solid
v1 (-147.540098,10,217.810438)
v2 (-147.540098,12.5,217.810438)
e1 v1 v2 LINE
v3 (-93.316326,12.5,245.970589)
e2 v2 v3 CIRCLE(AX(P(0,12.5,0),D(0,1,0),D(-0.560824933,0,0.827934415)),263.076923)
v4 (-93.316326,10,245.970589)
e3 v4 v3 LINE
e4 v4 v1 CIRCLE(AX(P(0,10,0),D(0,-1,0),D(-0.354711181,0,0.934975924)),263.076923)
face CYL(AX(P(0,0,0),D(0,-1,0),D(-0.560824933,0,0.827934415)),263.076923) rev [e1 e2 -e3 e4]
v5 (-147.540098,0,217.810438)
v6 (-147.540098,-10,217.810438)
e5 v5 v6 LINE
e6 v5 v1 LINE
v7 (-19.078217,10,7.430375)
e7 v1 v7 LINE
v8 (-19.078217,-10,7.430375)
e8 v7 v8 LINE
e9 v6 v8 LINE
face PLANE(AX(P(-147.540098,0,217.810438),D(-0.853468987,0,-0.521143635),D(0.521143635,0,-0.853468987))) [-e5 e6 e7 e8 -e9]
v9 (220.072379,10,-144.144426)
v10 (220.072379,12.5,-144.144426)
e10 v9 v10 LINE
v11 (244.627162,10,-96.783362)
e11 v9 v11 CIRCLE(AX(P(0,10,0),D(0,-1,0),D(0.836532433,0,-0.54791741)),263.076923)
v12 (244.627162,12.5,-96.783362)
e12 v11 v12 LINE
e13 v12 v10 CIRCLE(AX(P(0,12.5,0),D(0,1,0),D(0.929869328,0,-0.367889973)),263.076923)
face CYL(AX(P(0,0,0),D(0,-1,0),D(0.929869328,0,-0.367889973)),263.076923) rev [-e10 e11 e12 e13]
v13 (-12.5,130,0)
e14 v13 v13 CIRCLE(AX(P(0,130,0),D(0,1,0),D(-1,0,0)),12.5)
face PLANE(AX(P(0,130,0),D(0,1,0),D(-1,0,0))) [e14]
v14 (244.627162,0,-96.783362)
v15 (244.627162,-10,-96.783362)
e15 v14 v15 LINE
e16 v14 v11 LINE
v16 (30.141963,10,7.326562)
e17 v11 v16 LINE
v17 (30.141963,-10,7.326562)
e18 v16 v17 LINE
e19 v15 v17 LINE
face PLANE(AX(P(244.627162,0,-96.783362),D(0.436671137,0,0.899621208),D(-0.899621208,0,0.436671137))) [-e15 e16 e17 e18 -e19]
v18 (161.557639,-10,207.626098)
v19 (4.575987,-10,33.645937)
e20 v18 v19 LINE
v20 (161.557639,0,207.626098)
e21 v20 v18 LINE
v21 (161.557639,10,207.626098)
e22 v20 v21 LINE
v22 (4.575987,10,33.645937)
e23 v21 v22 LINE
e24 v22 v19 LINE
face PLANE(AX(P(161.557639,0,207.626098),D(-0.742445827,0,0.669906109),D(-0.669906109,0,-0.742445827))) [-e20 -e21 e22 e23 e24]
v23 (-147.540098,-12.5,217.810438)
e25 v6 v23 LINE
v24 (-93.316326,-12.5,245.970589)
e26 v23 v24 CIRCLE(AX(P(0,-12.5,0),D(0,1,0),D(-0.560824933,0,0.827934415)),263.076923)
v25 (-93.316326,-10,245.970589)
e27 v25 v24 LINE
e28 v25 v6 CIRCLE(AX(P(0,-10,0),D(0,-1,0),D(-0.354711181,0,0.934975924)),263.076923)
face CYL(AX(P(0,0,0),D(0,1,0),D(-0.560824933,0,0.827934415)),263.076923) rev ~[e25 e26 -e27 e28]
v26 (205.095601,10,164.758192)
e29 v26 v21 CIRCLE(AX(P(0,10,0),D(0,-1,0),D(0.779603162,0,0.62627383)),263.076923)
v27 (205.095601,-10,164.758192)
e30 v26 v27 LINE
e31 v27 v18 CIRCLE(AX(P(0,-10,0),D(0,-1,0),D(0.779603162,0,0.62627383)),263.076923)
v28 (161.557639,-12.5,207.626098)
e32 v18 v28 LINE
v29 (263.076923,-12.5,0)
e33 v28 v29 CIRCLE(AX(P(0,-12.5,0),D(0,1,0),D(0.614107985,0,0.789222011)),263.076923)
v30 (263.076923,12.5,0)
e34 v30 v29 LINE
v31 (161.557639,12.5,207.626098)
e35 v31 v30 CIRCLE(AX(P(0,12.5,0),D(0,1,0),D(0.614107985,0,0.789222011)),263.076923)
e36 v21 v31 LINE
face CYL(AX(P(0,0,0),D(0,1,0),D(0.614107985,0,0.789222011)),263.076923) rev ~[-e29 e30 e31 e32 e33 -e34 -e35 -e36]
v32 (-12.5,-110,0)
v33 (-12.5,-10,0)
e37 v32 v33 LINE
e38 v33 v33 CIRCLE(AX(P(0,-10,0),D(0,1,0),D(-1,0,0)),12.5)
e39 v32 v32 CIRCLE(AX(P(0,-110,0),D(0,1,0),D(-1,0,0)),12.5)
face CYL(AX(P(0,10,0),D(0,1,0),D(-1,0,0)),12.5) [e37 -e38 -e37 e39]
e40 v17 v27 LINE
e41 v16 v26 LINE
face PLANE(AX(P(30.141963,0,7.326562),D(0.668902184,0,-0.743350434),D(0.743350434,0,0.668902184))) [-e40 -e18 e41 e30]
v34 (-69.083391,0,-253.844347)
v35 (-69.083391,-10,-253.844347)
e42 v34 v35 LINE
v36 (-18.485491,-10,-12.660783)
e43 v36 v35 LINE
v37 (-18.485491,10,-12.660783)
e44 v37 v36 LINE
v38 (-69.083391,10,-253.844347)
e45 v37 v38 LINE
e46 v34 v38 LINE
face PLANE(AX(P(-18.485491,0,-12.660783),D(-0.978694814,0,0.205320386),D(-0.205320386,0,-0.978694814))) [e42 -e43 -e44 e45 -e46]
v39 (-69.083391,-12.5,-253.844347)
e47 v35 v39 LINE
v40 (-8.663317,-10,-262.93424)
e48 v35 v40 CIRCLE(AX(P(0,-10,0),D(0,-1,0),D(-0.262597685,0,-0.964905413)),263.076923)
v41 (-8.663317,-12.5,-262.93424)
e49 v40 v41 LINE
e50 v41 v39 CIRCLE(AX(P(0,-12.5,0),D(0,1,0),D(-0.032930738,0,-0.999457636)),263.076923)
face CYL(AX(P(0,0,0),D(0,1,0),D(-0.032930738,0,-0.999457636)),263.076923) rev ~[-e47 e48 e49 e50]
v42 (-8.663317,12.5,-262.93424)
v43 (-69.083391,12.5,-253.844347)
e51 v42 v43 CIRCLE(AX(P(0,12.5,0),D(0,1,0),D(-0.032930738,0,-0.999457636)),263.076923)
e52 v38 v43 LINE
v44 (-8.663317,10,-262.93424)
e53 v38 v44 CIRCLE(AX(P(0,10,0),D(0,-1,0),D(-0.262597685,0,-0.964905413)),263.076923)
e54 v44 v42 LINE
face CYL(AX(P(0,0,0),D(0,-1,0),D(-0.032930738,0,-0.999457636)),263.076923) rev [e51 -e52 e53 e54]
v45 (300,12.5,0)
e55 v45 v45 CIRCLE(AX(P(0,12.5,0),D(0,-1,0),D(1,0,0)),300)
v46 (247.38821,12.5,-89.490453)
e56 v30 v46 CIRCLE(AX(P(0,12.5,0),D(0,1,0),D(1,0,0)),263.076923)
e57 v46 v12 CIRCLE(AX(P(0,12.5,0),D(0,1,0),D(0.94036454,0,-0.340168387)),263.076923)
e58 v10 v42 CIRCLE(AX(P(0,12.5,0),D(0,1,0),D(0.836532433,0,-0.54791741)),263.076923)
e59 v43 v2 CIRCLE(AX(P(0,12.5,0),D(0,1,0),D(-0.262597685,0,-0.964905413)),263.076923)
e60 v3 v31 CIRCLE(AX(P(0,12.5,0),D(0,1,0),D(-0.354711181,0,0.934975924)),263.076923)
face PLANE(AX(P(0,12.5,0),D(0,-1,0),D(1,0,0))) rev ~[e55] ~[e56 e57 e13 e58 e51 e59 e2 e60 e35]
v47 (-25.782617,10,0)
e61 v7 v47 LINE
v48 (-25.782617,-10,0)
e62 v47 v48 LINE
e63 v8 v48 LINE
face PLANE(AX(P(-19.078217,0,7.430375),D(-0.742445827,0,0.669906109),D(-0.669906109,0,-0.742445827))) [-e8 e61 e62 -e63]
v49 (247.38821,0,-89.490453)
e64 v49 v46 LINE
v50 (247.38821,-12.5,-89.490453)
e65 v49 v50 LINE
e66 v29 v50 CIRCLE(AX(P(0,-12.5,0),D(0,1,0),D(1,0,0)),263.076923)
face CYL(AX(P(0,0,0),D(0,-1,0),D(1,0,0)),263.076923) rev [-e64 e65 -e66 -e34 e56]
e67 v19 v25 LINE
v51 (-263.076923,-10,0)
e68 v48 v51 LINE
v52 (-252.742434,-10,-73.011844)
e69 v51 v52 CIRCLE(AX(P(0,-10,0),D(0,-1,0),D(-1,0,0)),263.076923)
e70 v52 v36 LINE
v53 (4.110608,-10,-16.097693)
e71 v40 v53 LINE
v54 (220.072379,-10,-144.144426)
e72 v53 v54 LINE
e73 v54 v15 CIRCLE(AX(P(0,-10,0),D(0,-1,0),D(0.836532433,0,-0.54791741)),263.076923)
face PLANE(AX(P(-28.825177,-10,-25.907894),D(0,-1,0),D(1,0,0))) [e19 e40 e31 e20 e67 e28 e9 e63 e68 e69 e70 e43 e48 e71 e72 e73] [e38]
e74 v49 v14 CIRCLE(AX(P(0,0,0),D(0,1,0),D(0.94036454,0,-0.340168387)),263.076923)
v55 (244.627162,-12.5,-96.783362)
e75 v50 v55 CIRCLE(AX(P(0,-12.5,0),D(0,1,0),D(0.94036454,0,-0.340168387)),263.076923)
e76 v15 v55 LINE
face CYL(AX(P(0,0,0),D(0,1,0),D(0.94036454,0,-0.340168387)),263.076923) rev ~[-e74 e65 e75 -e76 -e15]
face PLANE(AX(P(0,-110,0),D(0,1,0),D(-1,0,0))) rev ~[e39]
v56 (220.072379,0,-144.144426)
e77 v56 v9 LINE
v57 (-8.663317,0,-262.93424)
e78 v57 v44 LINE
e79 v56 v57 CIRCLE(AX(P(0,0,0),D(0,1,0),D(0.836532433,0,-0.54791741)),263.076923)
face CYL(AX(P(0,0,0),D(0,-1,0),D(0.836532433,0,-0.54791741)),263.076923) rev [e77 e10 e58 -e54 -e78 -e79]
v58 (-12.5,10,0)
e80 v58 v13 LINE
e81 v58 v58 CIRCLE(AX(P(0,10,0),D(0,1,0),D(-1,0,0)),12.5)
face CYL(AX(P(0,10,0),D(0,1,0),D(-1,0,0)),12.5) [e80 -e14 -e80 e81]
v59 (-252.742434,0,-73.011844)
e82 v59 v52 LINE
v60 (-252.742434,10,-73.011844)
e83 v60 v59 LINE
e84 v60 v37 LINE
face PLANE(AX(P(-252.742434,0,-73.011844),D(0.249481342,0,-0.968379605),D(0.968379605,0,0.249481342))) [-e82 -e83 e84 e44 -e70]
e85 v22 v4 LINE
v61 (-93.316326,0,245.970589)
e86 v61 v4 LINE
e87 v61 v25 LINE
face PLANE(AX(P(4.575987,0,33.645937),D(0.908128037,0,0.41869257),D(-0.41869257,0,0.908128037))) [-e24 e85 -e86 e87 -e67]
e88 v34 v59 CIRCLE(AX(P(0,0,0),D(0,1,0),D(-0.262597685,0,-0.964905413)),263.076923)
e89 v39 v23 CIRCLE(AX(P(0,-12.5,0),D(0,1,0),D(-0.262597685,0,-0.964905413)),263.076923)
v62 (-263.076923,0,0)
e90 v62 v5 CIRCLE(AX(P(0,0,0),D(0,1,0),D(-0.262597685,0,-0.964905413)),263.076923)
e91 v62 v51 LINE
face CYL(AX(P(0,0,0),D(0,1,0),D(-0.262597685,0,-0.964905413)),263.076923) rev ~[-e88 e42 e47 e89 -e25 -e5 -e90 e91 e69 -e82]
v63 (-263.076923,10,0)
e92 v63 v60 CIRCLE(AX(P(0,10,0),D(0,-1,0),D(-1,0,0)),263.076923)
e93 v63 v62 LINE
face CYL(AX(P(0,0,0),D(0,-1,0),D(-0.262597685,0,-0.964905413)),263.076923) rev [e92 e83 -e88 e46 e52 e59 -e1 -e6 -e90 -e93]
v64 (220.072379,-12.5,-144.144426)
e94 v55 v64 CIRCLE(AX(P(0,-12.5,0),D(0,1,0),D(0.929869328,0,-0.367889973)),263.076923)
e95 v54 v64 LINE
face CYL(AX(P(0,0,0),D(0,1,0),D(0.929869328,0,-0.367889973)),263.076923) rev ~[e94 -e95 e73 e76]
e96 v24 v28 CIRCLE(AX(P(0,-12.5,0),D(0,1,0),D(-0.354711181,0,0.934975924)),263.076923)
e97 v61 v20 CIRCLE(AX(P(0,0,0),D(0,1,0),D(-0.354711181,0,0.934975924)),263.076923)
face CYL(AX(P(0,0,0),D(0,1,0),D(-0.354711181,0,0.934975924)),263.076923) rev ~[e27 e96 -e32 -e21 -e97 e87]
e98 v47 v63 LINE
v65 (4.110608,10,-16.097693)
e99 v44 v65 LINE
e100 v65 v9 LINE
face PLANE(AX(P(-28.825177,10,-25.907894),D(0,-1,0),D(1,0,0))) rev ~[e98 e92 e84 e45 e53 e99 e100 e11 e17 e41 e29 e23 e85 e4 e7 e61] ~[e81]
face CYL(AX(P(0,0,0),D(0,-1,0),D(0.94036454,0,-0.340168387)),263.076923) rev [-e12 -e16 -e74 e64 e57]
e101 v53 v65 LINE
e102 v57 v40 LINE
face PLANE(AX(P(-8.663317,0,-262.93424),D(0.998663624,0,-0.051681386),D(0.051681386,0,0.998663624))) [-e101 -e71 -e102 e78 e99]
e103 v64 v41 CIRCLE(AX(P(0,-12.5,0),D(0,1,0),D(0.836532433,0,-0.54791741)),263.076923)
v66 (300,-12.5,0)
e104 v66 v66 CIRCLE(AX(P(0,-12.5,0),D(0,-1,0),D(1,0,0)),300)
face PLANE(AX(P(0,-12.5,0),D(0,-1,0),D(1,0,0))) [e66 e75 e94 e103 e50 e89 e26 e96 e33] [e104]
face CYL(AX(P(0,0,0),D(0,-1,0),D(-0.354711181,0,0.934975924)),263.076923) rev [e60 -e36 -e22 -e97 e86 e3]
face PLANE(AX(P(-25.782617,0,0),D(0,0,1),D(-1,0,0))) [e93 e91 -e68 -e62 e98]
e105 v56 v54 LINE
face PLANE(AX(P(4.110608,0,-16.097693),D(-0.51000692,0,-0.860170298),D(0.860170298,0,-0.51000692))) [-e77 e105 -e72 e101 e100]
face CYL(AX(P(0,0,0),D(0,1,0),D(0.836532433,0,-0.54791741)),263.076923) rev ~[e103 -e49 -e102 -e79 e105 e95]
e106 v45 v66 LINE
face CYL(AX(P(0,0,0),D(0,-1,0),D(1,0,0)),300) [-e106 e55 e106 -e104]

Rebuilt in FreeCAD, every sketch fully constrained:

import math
import FreeCAD as App
import Part
import Sketcher

V = App.Vector

doc = App.newDocument("Part")
params = doc.addObject("Spreadsheet::Sheet", "Params")
for row, (alias, value) in enumerate([
    ("sketch1_diameter", "600 mm"),
    ("pad1_length", "25 mm"),
    ("pad2_length", "20 mm"),
    ("sketch3_diameter", "25 mm"),
    ("pad3_length", "240 mm"),
], start=1):
    params.set(f"A{row}", alias)
    params.set(f"B{row}", "=" + value)
    params.setAlias(f"B{row}", alias)

body = doc.addObject("PartDesign::Body", "Body")

# Sketch on XZ plane
sketch1 = doc.addObject("Sketcher::SketchObject", "Sketch")
body.addObject(sketch1)
sketch1.AttachmentSupport = (doc.XZ_Plane, [""])
sketch1.MapMode = "FlatFace"
sketch1.addGeometry(Part.Circle(V(0, 0, 0), V(0, 0, 1), 300), False)
sketch1.addGeometry(Part.ArcOfCircle(Part.Circle(V(0, 0, 0), V(0, 0, 1), 263), math.radians(-19.89), math.radians(0)), False)
sketch1.addGeometry(Part.ArcOfCircle(Part.Circle(V(0, 0, 0), V(0, 0, 1), 263), math.radians(-21.59), math.radians(-19.89)), False)
sketch1.addGeometry(Part.ArcOfCircle(Part.Circle(V(0, 0, 0), V(0, 0, 1), 263), math.radians(-33.22), math.radians(-21.59)), False)
sketch1.addGeometry(Part.ArcOfCircle(Part.Circle(V(0, 0, 0), V(0, 0, 1), 263), math.radians(-92), math.radians(-33)), False)
sketch1.addGeometry(Part.ArcOfCircle(Part.Circle(V(0, 0, 0), V(0, 0, 1), 263), math.radians(-105.22), math.radians(-91.89)), False)
sketch1.addGeometry(Part.ArcOfCircle(Part.Circle(V(0, 0, 0), V(0, 0, 1), 263), math.radians(124), math.radians(255)), False)
sketch1.addGeometry(Part.ArcOfCircle(Part.Circle(V(0, 0, 0), V(0, 0, 1), 263), math.radians(110.78), math.radians(124.11)), False)
sketch1.addGeometry(Part.ArcOfCircle(Part.Circle(V(0, 0, 0), V(0, 0, 1), 263), math.radians(52), math.radians(111)), False)
sketch1.addGeometry(Part.ArcOfCircle(Part.Circle(V(0, 0, 0), V(0, 0, 1), 263), math.radians(0), math.radians(52)), False)
sketch1.addConstraint(Sketcher.Constraint("Tangent", 1, 1, 2, 2))
sketch1.addConstraint(Sketcher.Constraint("Tangent", 2, 1, 3, 2))
sketch1.addConstraint(Sketcher.Constraint("Tangent", 3, 1, 4, 2))
sketch1.addConstraint(Sketcher.Constraint("Tangent", 4, 1, 5, 2))
sketch1.addConstraint(Sketcher.Constraint("Tangent", 5, 1, 6, 2))
sketch1.addConstraint(Sketcher.Constraint("Tangent", 6, 1, 7, 2))
sketch1.addConstraint(Sketcher.Constraint("Tangent", 7, 1, 8, 2))
sketch1.addConstraint(Sketcher.Constraint("Tangent", 8, 1, 9, 2))
sketch1.addConstraint(Sketcher.Constraint("Tangent", 9, 1, 1, 2))
sketch1.addConstraint(Sketcher.Constraint("Coincident", 0, 3, -1, 1))
sketch1.addConstraint(Sketcher.Constraint("Coincident", 1, 3, -1, 1))
sketch1.addConstraint(Sketcher.Constraint("Coincident", 3, 3, -1, 1))
sketch1.addConstraint(Sketcher.Constraint("Coincident", 5, 3, -1, 1))
sketch1.addConstraint(Sketcher.Constraint("Coincident", 7, 3, -1, 1))
sketch1.addConstraint(Sketcher.Constraint("PointOnObject", 9, 1, -1))
sketch1.addConstraint(Sketcher.Constraint("Diameter", 0, 600.0))
sketch1.addConstraint(Sketcher.Constraint("Radius", 1, 263.076923))
sketch1.addConstraint(Sketcher.Constraint("DistanceY", -1, 1, 8, 1, 207.626098))
sketch1.addConstraint(Sketcher.Constraint("DistanceX", -1, 1, 1, 1, 247.38821))
sketch1.addConstraint(Sketcher.Constraint("DistanceX", -1, 1, 2, 1, 244.627162))
sketch1.addConstraint(Sketcher.Constraint("DistanceX", -1, 1, 3, 1, 220.072379))
sketch1.addConstraint(Sketcher.Constraint("DistanceY", 4, 1, -1, 1, 262.93424))
sketch1.addConstraint(Sketcher.Constraint("DistanceX", 5, 1, -1, 1, 69.083391))
sketch1.addConstraint(Sketcher.Constraint("DistanceY", -1, 1, 6, 1, 217.810438))
sketch1.addConstraint(Sketcher.Constraint("DistanceY", -1, 1, 7, 1, 245.970589))
sketch1.setExpression("Constraints[15]", "Params.sketch1_diameter")
pad1 = doc.addObject("PartDesign::Pad", "Pad")
body.addObject(pad1)
pad1.Profile = sketch1
pad1.setExpression("Length", "Params.pad1_length")
pad1.Midplane = True

# Sketch on XZ plane
sketch2 = doc.addObject("Sketcher::SketchObject", "Sketch001")
body.addObject(sketch2)
sketch2.AttachmentSupport = (doc.XZ_Plane, [""])
sketch2.MapMode = "FlatFace"
sketch2.addGeometry(Part.LineSegment(V(244.627162, -96.783362, 0), V(30.141963, 7.326562, 0)), False)
sketch2.addGeometry(Part.LineSegment(V(30.141963, 7.326562, 0), V(205.095601, 164.758192, 0)), False)
sketch2.addGeometry(Part.ArcOfCircle(Part.Circle(V(0, 0, 0), V(0, 0, 1), 263.076923), math.radians(38.775744), math.radians(52.112867)), False)
sketch2.addGeometry(Part.LineSegment(V(161.557639, 207.626098, 0), V(4.575987, 33.645937, 0)), False)
sketch2.addGeometry(Part.LineSegment(V(4.575987, 33.645937, 0), V(-93.316326, 245.970589, 0)), False)
sketch2.addGeometry(Part.ArcOfCircle(Part.Circle(V(0, 0, 0), V(0, 0, 1), 263.076923), math.radians(110.775744), math.radians(124.112867)), False)
sketch2.addGeometry(Part.LineSegment(V(-147.540098, 217.810438, 0), V(-19.078217, 7.430375, 0)), False)
sketch2.addGeometry(Part.LineSegment(V(-19.078217, 7.430375, 0), V(-25.782617, 0, 0)), False)
sketch2.addGeometry(Part.LineSegment(V(-25.782617, 0, 0), V(-263.076923, 0, 0)), False)
sketch2.addGeometry(Part.ArcOfCircle(Part.Circle(V(0, 0, 0), V(0, 0, 1), 263.076923), math.radians(180), math.radians(196.112867)), False)
sketch2.addGeometry(Part.LineSegment(V(-252.742434, -73.011844, 0), V(-18.485491, -12.660783, 0)), False)
sketch2.addGeometry(Part.LineSegment(V(-18.485491, -12.660783, 0), V(-69.083391, -253.844347, 0)), False)
sketch2.addGeometry(Part.ArcOfCircle(Part.Circle(V(0, 0, 0), V(0, 0, 1), 263.076923), math.radians(-105.224256), math.radians(-91.887133)), False)
sketch2.addGeometry(Part.LineSegment(V(-8.663317, -262.93424, 0), V(4.110608, -16.097693, 0)), False)
sketch2.addGeometry(Part.LineSegment(V(4.110608, -16.097693, 0), V(220.072379, -144.144426, 0)), False)
sketch2.addGeometry(Part.ArcOfCircle(Part.Circle(V(0, 0, 0), V(0, 0, 1), 263.076923), math.radians(-33.224256), math.radians(-21.585545)), False)
sketch2.addConstraint(Sketcher.Constraint("Coincident", 0, 2, 1, 1))
sketch2.addConstraint(Sketcher.Constraint("Coincident", 1, 2, 2, 1))
sketch2.addConstraint(Sketcher.Constraint("Coincident", 2, 2, 3, 1))
sketch2.addConstraint(Sketcher.Constraint("Coincident", 3, 2, 4, 1))
sketch2.addConstraint(Sketcher.Constraint("Coincident", 4, 2, 5, 1))
sketch2.addConstraint(Sketcher.Constraint("Coincident", 5, 2, 6, 1))
sketch2.addConstraint(Sketcher.Constraint("Coincident", 6, 2, 7, 1))
sketch2.addConstraint(Sketcher.Constraint("Coincident", 7, 2, 8, 1))
sketch2.addConstraint(Sketcher.Constraint("Coincident", 8, 2, 9, 1))
sketch2.addConstraint(Sketcher.Constraint("Coincident", 9, 2, 10, 1))
sketch2.addConstraint(Sketcher.Constraint("Coincident", 10, 2, 11, 1))
sketch2.addConstraint(Sketcher.Constraint("Coincident", 11, 2, 12, 1))
sketch2.addConstraint(Sketcher.Constraint("Coincident", 12, 2, 13, 1))
sketch2.addConstraint(Sketcher.Constraint("Coincident", 13, 2, 14, 1))
sketch2.addConstraint(Sketcher.Constraint("Coincident", 14, 2, 15, 1))
sketch2.addConstraint(Sketcher.Constraint("Coincident", 15, 2, 0, 1))
sketch2.addConstraint(Sketcher.Constraint("Horizontal", 8))
sketch2.addConstraint(Sketcher.Constraint("Coincident", 2, 3, -1, 1))
sketch2.addConstraint(Sketcher.Constraint("Coincident", 5, 3, -1, 1))
sketch2.addConstraint(Sketcher.Constraint("Coincident", 9, 3, -1, 1))
sketch2.addConstraint(Sketcher.Constraint("Coincident", 12, 3, -1, 1))
sketch2.addConstraint(Sketcher.Constraint("Coincident", 15, 3, -1, 1))
sketch2.addConstraint(Sketcher.Constraint("PointOnObject", 7, 2, -1))
sketch2.addConstraint(Sketcher.Constraint("Radius", 2, 263.076923))
sketch2.addConstraint(Sketcher.Constraint("Radius", 5, 263.076923))
sketch2.addConstraint(Sketcher.Constraint("Radius", 9, 263.076923))
sketch2.addConstraint(Sketcher.Constraint("Radius", 12, 263.076923))
sketch2.addConstraint(Sketcher.Constraint("Radius", 15, 263.076923))
sketch2.addConstraint(Sketcher.Constraint("DistanceX", -1, 1, 1, 2, 205.095601))
sketch2.addConstraint(Sketcher.Constraint("DistanceY", -1, 1, 2, 2, 207.626098))
sketch2.addConstraint(Sketcher.Constraint("DistanceY", 3, 2, 5, 2, 184.164501))
sketch2.addConstraint(Sketcher.Constraint("DistanceX", 7, 2, 6, 2, 6.7044))
sketch2.addConstraint(Sketcher.Constraint("DistanceX", 11, 2, 10, 2, 50.5979))
sketch2.addConstraint(Sketcher.Constraint("DistanceX", 0, 2, 15, 2, 214.485199))
sketch2.addConstraint(Sketcher.Constraint("Distance", 6, 246.499951))
sketch2.addConstraint(Sketcher.Constraint("Distance", 7, 10.00797))
sketch2.addConstraint(Sketcher.Constraint("Distance", 10, 241.90611))
sketch2.addConstraint(Sketcher.Constraint("Distance", 14, 251.06862))
sketch2.addConstraint(Sketcher.Constraint("DistanceX", 8, 2, 8, 1, 237.294306))
sketch2.addConstraint(Sketcher.Constraint("DistanceY", -1, 1, 4, 2, 245.970589))
sketch2.addConstraint(Sketcher.Constraint("DistanceX", 10, 2, -1, 1, 18.485491))
sketch2.addConstraint(Sketcher.Constraint("DistanceY", 12, 2, -1, 1, 262.93424))
sketch2.addConstraint(Sketcher.Constraint("DistanceX", -1, 1, 13, 2, 4.110608))
sketch2.addConstraint(Sketcher.Constraint("DistanceX", -1, 1, 14, 2, 220.072379))
sketch2.addConstraint(Sketcher.Constraint("DistanceX", -1, 1, 15, 2, 244.627162))
sketch2.addConstraint(Sketcher.Constraint("DistanceY", 0, 2, 1, 2, 157.43163))
sketch2.addConstraint(Sketcher.Constraint("DistanceX", 8, 2, 9, 2, 10.334489))
sketch2.addConstraint(Sketcher.Constraint("Distance", 3, 234.333812))
pad2 = doc.addObject("PartDesign::Pad", "Pad001")
body.addObject(pad2)
pad2.Profile = sketch2
pad2.setExpression("Length", "Params.pad2_length")
pad2.Midplane = True

# Sketch on XZ plane
sketch3 = doc.addObject("Sketcher::SketchObject", "Sketch002")
body.addObject(sketch3)
sketch3.AttachmentSupport = (doc.XZ_Plane, [""])
sketch3.MapMode = "FlatFace"
sketch3.AttachmentOffset = App.Placement(V(0, 0, -10), App.Rotation())
sketch3.addGeometry(Part.Circle(V(0, 0, 0), V(0, 0, 1), 12), False)
sketch3.addConstraint(Sketcher.Constraint("Coincident", 0, 3, -1, 1))
sketch3.addConstraint(Sketcher.Constraint("Diameter", 0, 25.0))
sketch3.setExpression("Constraints[1]", "Params.sketch3_diameter")
pad3 = doc.addObject("PartDesign::Pad", "Pad002")
body.addObject(pad3)
pad3.Profile = sketch3
pad3.setExpression("Length", "Params.pad3_length")
pad3.Midplane = True

doc.recompute()
